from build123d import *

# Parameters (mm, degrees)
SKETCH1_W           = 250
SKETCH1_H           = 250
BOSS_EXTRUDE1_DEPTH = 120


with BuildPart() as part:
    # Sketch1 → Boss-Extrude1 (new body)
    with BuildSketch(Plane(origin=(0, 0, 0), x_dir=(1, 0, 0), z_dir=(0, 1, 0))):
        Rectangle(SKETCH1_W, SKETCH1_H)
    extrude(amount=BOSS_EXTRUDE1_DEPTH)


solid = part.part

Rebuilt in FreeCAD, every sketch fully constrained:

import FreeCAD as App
import Part
import Sketcher
from FreeCAD import Vector
Q = App.Units.Quantity

doc = App.newDocument("Part")
params = doc.addObject("Spreadsheet::Sheet", "Params")
for row, (alias, value) in enumerate([
    ("sketch1_width", "250 mm"),
    ("pad1_length", "120 mm"),
], start=1):
    params.set(f"A{row}", alias)
    params.set(f"B{row}", "=" + value)
    params.setAlias(f"B{row}", alias)

body = doc.addObject("PartDesign::Body", "Body")

# Sketch on XZ plane
sketch1 = doc.addObject("Sketcher::SketchObject", "Sketch")
body.addObject(sketch1)
sketch1.AttachmentSupport = (doc.XZ_Plane, [""])
sketch1.MapMode = "FlatFace"
sketch1.addGeometry([
    Part.LineSegment(Vector(-125, -125, 0), Vector(-125, 125, 0)),
    Part.LineSegment(Vector(-125, 125, 0), Vector(125, 125, 0)),
    Part.LineSegment(Vector(125, 125, 0), Vector(125, -125, 0)),
    Part.LineSegment(Vector(125, -125, 0), Vector(-125, -125, 0)),
], False)
sketch1.addConstraint([
    Sketcher.Constraint("Coincident", 0, 2, 1, 1),
    Sketcher.Constraint("Coincident", 1, 2, 2, 1),
    Sketcher.Constraint("Coincident", 2, 2, 3, 1),
    Sketcher.Constraint("Coincident", 3, 2, 0, 1),
    Sketcher.Constraint("Vertical", 0),
    Sketcher.Constraint("Horizontal", 1),
    Sketcher.Constraint("Vertical", 2),
    Sketcher.Constraint("Horizontal", 3),
    Sketcher.Constraint("Symmetric", 0, 2, 2, 2, -1, 1),
    Sketcher.Constraint("Equal", 3, 0),
    Sketcher.Constraint("DistanceX", 1, 1, 1, 2, Q("250 mm")),
])
sketch1.setExpression("Constraints[10]", "Params.sketch1_width")
pad1 = doc.addObject("PartDesign::Pad", "Pad")
body.addObject(pad1)
pad1.Profile = sketch1
pad1.setExpression("Length", "Params.pad1_length")
pad1.Reversed = True

doc.recompute()
